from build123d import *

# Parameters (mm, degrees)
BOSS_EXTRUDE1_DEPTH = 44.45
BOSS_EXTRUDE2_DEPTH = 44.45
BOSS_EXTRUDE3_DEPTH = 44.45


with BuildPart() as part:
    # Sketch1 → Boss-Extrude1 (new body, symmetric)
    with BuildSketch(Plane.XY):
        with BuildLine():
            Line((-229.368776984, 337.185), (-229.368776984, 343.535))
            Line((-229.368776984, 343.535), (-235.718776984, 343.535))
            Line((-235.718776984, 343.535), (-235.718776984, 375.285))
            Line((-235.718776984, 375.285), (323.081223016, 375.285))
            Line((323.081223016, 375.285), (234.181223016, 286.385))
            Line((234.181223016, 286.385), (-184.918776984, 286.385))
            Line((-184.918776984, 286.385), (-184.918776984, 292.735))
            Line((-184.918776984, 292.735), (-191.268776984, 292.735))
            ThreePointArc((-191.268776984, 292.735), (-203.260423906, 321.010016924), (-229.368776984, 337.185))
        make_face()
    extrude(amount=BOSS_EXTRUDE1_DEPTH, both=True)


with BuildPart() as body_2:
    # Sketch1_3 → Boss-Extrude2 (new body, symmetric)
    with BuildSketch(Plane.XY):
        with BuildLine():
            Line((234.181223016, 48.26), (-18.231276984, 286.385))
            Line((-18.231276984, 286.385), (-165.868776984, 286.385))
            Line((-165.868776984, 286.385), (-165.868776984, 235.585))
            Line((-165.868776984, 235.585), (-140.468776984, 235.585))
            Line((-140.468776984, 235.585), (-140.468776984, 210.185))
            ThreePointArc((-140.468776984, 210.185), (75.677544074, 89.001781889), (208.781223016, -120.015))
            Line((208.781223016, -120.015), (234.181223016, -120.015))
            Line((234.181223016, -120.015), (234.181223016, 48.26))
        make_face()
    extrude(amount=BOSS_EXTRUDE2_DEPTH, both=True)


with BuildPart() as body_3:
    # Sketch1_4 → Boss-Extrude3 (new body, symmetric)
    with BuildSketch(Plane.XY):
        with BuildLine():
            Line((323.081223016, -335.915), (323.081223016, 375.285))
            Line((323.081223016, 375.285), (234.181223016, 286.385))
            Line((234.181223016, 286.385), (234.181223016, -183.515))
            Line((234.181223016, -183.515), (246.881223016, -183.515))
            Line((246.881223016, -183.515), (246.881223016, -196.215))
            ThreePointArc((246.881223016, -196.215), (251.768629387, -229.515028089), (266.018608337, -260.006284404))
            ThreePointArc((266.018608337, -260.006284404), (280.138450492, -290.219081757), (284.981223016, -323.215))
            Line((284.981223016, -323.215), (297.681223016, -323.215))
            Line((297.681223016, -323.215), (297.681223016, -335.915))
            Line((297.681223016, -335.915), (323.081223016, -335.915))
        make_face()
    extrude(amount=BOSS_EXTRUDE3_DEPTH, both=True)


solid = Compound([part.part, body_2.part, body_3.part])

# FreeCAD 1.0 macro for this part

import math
import FreeCAD as App
import Part
import Sketcher
from FreeCAD import Vector
Q = App.Units.Quantity

doc = App.newDocument("Part")
body = doc.addObject("PartDesign::Body", "Body")

sketch1 = doc.addObject("Sketcher::SketchObject", "Sketch")
body.addObject(sketch1)
sketch1.AttachmentSupport = (doc.XY_Plane, [""])
sketch1.MapMode = "FlatFace"
sketch1.addGeometry(Part.LineSegment(Vector(-229.368777, 343.535, 0), Vector(-229.368777, 337.185, 0)), False)
sketch1.addGeometry(Part.ArcOfCircle(Part.Circle(Vector(-241.780102, 287.99315, 0), Vector(0, 0, 1), 50.733412), math.radians(5.363036), math.radians(75.839553)), False)
sketch1.addGeometry(Part.LineSegment(Vector(-191.268777, 292.735, 0), Vector(-184.918777, 292.735, 0)), False)
sketch1.addGeometry(Part.LineSegment(Vector(-184.918777, 292.735, 0), Vector(-184.918777, 286.385, 0)), False)
sketch1.addGeometry(Part.LineSegment(Vector(-184.918777, 286.385, 0), Vector(234.181223, 286.385, 0)), False)
sketch1.addGeometry(Part.LineSegment(Vector(234.181223, 286.385, 0), Vector(323.081223, 375.285, 0)), False)
sketch1.addGeometry(Part.LineSegment(Vector(323.081223, 375.285, 0), Vector(-235.718777, 375.285, 0)), False)
sketch1.addGeometry(Part.LineSegment(Vector(-235.718777, 375.285, 0), Vector(-235.718777, 343.535, 0)), False)
sketch1.addGeometry(Part.LineSegment(Vector(-235.718777, 343.535, 0), Vector(-229.368777, 343.535, 0)), False)
sketch1.addConstraint(Sketcher.Constraint("Coincident", 0, 2, 1, 2))
sketch1.addConstraint(Sketcher.Constraint("Coincident", 1, 1, 2, 1))
sketch1.addConstraint(Sketcher.Constraint("Coincident", 2, 2, 3, 1))
sketch1.addConstraint(Sketcher.Constraint("Coincident", 3, 2, 4, 1))
sketch1.addConstraint(Sketcher.Constraint("Coincident", 4, 2, 5, 1))
sketch1.addConstraint(Sketcher.Constraint("Coincident", 5, 2, 6, 1))
sketch1.addConstraint(Sketcher.Constraint("Coincident", 6, 2, 7, 1))
sketch1.addConstraint(Sketcher.Constraint("Coincident", 7, 2, 8, 1))
sketch1.addConstraint(Sketcher.Constraint("Coincident", 8, 2, 0, 1))
sketch1.addConstraint(Sketcher.Constraint("Vertical", 0))
sketch1.addConstraint(Sketcher.Constraint("Horizontal", 2))
sketch1.addConstraint(Sketcher.Constraint("Vertical", 3))
sketch1.addConstraint(Sketcher.Constraint("Horizontal", 4))
sketch1.addConstraint(Sketcher.Constraint("Horizontal", 6))
sketch1.addConstraint(Sketcher.Constraint("Vertical", 7))
sketch1.addConstraint(Sketcher.Constraint("Horizontal", 8))
sketch1.addConstraint(Sketcher.Constraint("Equal", 2, 8))
sketch1.addConstraint(Sketcher.Constraint("Equal", 8, 0))
sketch1.addConstraint(Sketcher.Constraint("Equal", 0, 3))
sketch1.addConstraint(Sketcher.Constraint("DistanceX", 6, 2, 6, 1, Q("22 in")))
sketch1.addConstraint(Sketcher.Constraint("DistanceX", 4, 1, 4, 2, Q("16.5 in")))
sketch1.addConstraint(Sketcher.Constraint("Angle", 5, Q("45 deg")))
sketch1.addConstraint(Sketcher.Constraint("DistanceY", 3, 2, 0, 2, Q("2 in")))
sketch1.addConstraint(Sketcher.Constraint("DistanceX", 2, 2, 5, 2, Q("20 in")))
sketch1.addConstraint(Sketcher.Constraint("DistanceX", 2, 1, 2, 2, Q("0.25 in")))
sketch1.addConstraint(Sketcher.Constraint("DistanceY", -1, 1, 0, 2, Q("13.275 in")))
sketch1.addConstraint(Sketcher.Constraint("Radius", 1, Q("50.733412 mm")))
sketch1.addConstraint(Sketcher.Constraint("DistanceX", 1, 3, -1, 1, Q("241.780102 mm")))
pad1 = doc.addObject("PartDesign::Pad", "Pad")
body.addObject(pad1)
pad1.Profile = sketch1
pad1.Length = Q("3.5 in")
pad1.Midplane = True
body2 = doc.addObject("PartDesign::Body", "Body001")

sketch2 = doc.addObject("Sketcher::SketchObject", "Sketch001")
body2.addObject(sketch2)
sketch2.AttachmentSupport = (doc.getObject("XY_Plane001"), [""])
sketch2.MapMode = "FlatFace"
sketch2.addGeometry(Part.LineSegment(Vector(234.181223, 48.26, 0), Vector(-18.231277, 286.385, 0)), False)
sketch2.addGeometry(Part.LineSegment(Vector(-18.231277, 286.385, 0), Vector(-165.868777, 286.385, 0)), False)
sketch2.addGeometry(Part.LineSegment(Vector(-165.868777, 286.385, 0), Vector(-165.868777, 235.585, 0)), False)
sketch2.addGeometry(Part.LineSegment(Vector(-165.868777, 235.585, 0), Vector(-140.468777, 235.585, 0)), False)
sketch2.addGeometry(Part.LineSegment(Vector(-140.468777, 235.585, 0), Vector(-140.468777, 210.185, 0)), False)
sketch2.addGeometry(Part.ArcOfCircle(Part.Circle(Vector(-273.324238, -280.134719, 0), Vector(0, 0, 1), 508), math.radians(18.372664), math.radians(74.839342)), False)
sketch2.addGeometry(Part.LineSegment(Vector(208.781223, -120.015, 0), Vector(234.181223, -120.015, 0)), False)
sketch2.addGeometry(Part.LineSegment(Vector(234.181223, -120.015, 0), Vector(234.181223, 48.26, 0)), False)
sketch2.addConstraint(Sketcher.Constraint("Coincident", 0, 2, 1, 1))
sketch2.addConstraint(Sketcher.Constraint("Coincident", 1, 2, 2, 1))
sketch2.addConstraint(Sketcher.Constraint("Coincident", 2, 2, 3, 1))
sketch2.addConstraint(Sketcher.Constraint("Coincident", 3, 2, 4, 1))
sketch2.addConstraint(Sketcher.Constraint("Coincident", 4, 2, 5, 2))
sketch2.addConstraint(Sketcher.Constraint("Coincident", 5, 1, 6, 1))
sketch2.addConstraint(Sketcher.Constraint("Coincident", 6, 2, 7, 1))
sketch2.addConstraint(Sketcher.Constraint("Coincident", 7, 2, 0, 1))
sketch2.addConstraint(Sketcher.Constraint("Horizontal", 1))
sketch2.addConstraint(Sketcher.Constraint("Vertical", 2))
sketch2.addConstraint(Sketcher.Constraint("Horizontal", 3))
sketch2.addConstraint(Sketcher.Constraint("Vertical", 4))
sketch2.addConstraint(Sketcher.Constraint("Horizontal", 6))
sketch2.addConstraint(Sketcher.Constraint("Vertical", 7))
sketch2.addConstraint(Sketcher.Constraint("Equal", 3, 6))
sketch2.addConstraint(Sketcher.Constraint("Equal", 6, 4))
sketch2.addConstraint(Sketcher.Constraint("Radius", 5, Q("20 in")))
sketch2.addConstraint(Sketcher.Constraint("DistanceX", 3, 1, 3, 2, Q("1 in")))
sketch2.addConstraint(Sketcher.Constraint("DistanceY", 2, 2, 2, 1, Q("2 in")))
sketch2.addConstraint(Sketcher.Constraint("DistanceY", 6, 2, 0, 2, Q("16 in")))
sketch2.addConstraint(Sketcher.Constraint("DistanceY", -1, 1, 7, 2, Q("1.9 in")))
sketch2.addConstraint(Sketcher.Constraint("DistanceX", 1, 2, 1, 1, Q("5.8125 in")))
sketch2.addConstraint(Sketcher.Constraint("DistanceY", 7, 1, 7, 2, Q("6.625 in")))
sketch2.addConstraint(Sketcher.Constraint("DistanceX", 4, 2, 5, 1, Q("13.75 in")))
sketch2.addConstraint(Sketcher.Constraint("DistanceX", 5, 3, -1, 1, Q("273.324238 mm")))
pad2 = doc.addObject("PartDesign::Pad", "Pad001")
body2.addObject(pad2)
pad2.Profile = sketch2
pad2.Length = Q("3.5 in")
pad2.Midplane = True
body3 = doc.addObject("PartDesign::Body", "Body002")

sketch3 = doc.addObject("Sketcher::SketchObject", "Sketch002")
body3.addObject(sketch3)
sketch3.AttachmentSupport = (doc.getObject("XY_Plane002"), [""])
sketch3.MapMode = "FlatFace"
sketch3.addGeometry(Part.LineSegment(Vector(323.081223, -335.915, 0), Vector(323.081223, 375.285, 0)), False)
sketch3.addGeometry(Part.LineSegment(Vector(323.081223, 375.285, 0), Vector(234.181223, 286.385, 0)), False)
sketch3.addGeometry(Part.LineSegment(Vector(234.181223, 286.385, 0), Vector(234.181223, -183.515, 0)), False)
sketch3.addGeometry(Part.LineSegment(Vector(234.181223, -183.515, 0), Vector(246.881223, -183.515, 0)), False)
sketch3.addGeometry(Part.LineSegment(Vector(246.881223, -183.515, 0), Vector(246.881223, -196.215, 0)), False)
sketch3.addGeometry(Part.ArcOfCircle(Part.Circle(Vector(362.768723, -196.215, 0), Vector(0, 0, 1), 115.8875), math.radians(180), math.radians(213.398488)), False)
sketch3.addGeometry(Part.ArcOfCircle(Part.Circle(Vector(170.152056, -323.215, 0), Vector(0, 0, 1), 114.829167), math.radians(0), math.radians(33.398488)), False)
sketch3.addGeometry(Part.LineSegment(Vector(284.981223, -323.215, 0), Vector(297.681223, -323.215, 0)), False)
sketch3.addGeometry(Part.LineSegment(Vector(297.681223, -323.215, 0), Vector(297.681223, -335.915, 0)), False)
sketch3.addGeometry(Part.LineSegment(Vector(297.681223, -335.915, 0), Vector(323.081223, -335.915, 0)), False)
sketch3.addConstraint(Sketcher.Constraint("Coincident", 0, 2, 1, 1))
sketch3.addConstraint(Sketcher.Constraint("Coincident", 1, 2, 2, 1))
sketch3.addConstraint(Sketcher.Constraint("Coincident", 2, 2, 3, 1))
sketch3.addConstraint(Sketcher.Constraint("Coincident", 3, 2, 4, 1))
sketch3.addConstraint(Sketcher.Constraint("Tangent", 4, 2, 5, 1))
sketch3.addConstraint(Sketcher.Constraint("Tangent", 5, 2, 6, 2))
sketch3.addConstraint(Sketcher.Constraint("Coincident", 6, 1, 7, 1))
sketch3.addConstraint(Sketcher.Constraint("Coincident", 7, 2, 8, 1))
sketch3.addConstraint(Sketcher.Constraint("Coincident", 8, 2, 9, 1))
sketch3.addConstraint(Sketcher.Constraint("Coincident", 9, 2, 0, 1))
sketch3.addConstraint(Sketcher.Constraint("Vertical", 0))
sketch3.addConstraint(Sketcher.Constraint("Vertical", 2))
sketch3.addConstraint(Sketcher.Constraint("Horizontal", 3))
sketch3.addConstraint(Sketcher.Constraint("Vertical", 4))
sketch3.addConstraint(Sketcher.Constraint("Horizontal", 7))
sketch3.addConstraint(Sketcher.Constraint("Vertical", 8))
sketch3.addConstraint(Sketcher.Constraint("Horizontal", 9))
sketch3.addConstraint(Sketcher.Constraint("Equal", 3, 7))
sketch3.addConstraint(Sketcher.Constraint("Equal", 7, 4))
sketch3.addConstraint(Sketcher.Constraint("Equal", 4, 8))
sketch3.addConstraint(Sketcher.Constraint("DistanceX", 9, 1, 9, 2, Q("1 in")))
sketch3.addConstraint(Sketcher.Constraint("DistanceY", 0, 1, 0, 2, Q("28 in")))
sketch3.addConstraint(Sketcher.Constraint("DistanceX", 3, 1, 3, 2, Q("0.5 in")))
sketch3.addConstraint(Sketcher.Constraint("DistanceY", 2, 2, 2, 1, Q("18.5 in")))
sketch3.addConstraint(Sketcher.Constraint("Angle", 1, Q("-135 deg")))
sketch3.addConstraint(Sketcher.Constraint("Radius", 5, Q("4.5625 in")))
sketch3.addConstraint(Sketcher.Constraint("DistanceY", 6, 3, 5, 3, Q("5 in")))
sketch3.addConstraint(Sketcher.Constraint("DistanceY", 2, 2, 0, 2, Q("22 in")))
sketch3.addConstraint(Sketcher.Constraint("DistanceY", 5, 3, -1, 1, Q("7.725 in")))
sketch3.addConstraint(Sketcher.Constraint("DistanceX", -1, 1, 6, 3, Q("6.6988999 in")))
pad3 = doc.addObject("PartDesign::Pad", "Pad002")
body3.addObject(pad3)
pad3.Profile = sketch3
pad3.Length = Q("3.5 in")
pad3.Midplane = True

doc.recompute()
